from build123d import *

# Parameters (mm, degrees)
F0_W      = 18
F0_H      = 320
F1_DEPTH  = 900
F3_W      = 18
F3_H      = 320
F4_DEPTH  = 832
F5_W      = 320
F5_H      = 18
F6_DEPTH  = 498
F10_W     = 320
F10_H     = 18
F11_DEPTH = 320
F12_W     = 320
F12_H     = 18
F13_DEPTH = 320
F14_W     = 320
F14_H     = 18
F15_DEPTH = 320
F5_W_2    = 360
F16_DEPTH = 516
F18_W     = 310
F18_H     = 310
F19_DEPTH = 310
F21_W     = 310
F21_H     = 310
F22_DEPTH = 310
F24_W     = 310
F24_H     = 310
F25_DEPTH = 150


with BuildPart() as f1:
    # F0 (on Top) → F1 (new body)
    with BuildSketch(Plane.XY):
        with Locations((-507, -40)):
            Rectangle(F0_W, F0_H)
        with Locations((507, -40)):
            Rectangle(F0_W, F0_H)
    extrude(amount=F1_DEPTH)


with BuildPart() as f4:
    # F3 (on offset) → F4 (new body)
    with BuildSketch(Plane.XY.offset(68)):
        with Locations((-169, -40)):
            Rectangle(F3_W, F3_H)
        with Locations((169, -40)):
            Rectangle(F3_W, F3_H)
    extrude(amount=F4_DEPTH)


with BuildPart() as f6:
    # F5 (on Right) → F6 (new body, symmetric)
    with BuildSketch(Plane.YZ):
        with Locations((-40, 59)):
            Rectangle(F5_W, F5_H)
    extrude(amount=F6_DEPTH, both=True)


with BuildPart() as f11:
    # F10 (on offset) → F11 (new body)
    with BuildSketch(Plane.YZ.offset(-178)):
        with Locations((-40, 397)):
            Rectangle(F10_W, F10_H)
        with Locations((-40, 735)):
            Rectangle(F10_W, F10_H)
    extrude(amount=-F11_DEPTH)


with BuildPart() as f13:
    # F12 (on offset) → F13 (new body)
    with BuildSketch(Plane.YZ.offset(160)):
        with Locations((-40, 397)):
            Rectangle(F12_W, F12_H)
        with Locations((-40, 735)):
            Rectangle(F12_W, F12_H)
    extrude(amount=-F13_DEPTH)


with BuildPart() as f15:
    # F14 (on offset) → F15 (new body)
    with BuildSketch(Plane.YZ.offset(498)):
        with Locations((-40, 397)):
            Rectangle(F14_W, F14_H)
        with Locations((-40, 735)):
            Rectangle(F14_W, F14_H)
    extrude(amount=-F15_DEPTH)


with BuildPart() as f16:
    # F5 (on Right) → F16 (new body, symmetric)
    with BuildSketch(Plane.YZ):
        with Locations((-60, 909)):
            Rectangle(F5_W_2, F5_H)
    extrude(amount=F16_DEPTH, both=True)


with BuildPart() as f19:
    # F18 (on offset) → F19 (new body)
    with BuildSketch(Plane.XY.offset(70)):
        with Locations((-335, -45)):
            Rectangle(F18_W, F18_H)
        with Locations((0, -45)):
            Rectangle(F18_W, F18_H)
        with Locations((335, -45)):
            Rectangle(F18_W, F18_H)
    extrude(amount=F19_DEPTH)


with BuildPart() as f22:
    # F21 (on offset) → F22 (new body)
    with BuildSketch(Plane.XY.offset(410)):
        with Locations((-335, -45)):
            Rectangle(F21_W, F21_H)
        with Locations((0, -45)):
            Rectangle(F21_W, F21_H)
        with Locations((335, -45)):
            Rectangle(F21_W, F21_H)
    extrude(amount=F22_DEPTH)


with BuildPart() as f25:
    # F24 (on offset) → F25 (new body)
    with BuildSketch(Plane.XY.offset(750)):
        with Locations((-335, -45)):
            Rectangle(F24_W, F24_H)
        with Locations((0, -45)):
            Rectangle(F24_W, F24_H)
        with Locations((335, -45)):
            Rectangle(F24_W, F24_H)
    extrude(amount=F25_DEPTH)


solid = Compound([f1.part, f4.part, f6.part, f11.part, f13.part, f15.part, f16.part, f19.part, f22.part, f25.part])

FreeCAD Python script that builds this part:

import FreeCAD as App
import Part
import Sketcher
Q = App.Units.Quantity


def add_polygon(sketch, points):
    """Adds a closed chain of lines whose ends are joined by coincident constraints."""
    first, n = sketch.GeometryCount, len(points)
    for a, b in zip(points, points[1:] + points[:1]):
        sketch.addGeometry(Part.LineSegment(App.Vector(*a, 0), App.Vector(*b, 0)), False)
    for i in range(n):
        sketch.addConstraint(Sketcher.Constraint("Coincident", first + i, 2, first + (i + 1) % n, 1))

doc = App.newDocument("Part")
params = doc.addObject("Spreadsheet::Sheet", "Params")
for row, (alias, value) in enumerate([
    ("sketch1_width", "18 mm"),
    ("sketch1_height", "320 mm"),
    ("pad1_length", "900 mm"),
    ("sketch2_width", "18 mm"),
    ("sketch2_height", "320 mm"),
    ("pad2_length", "832 mm"),
    ("sketch3_width", "320 mm"),
    ("sketch3_height", "18 mm"),
    ("pad3_length", "996 mm"),
    ("sketch4_width", "320 mm"),
    ("sketch4_height", "18 mm"),
    ("pad4_length", "320 mm"),
    ("sketch5_width", "320 mm"),
    ("sketch5_height", "18 mm"),
    ("pad5_length", "320 mm"),
    ("sketch6_width", "320 mm"),
    ("sketch6_height", "18 mm"),
    ("pad6_length", "320 mm"),
    ("sketch7_width", "360 mm"),
    ("sketch7_height", "18 mm"),
    ("pad7_length", "1032 mm"),
    ("sketch8_width", "310 mm"),
    ("pad8_length", "310 mm"),
    ("sketch9_width", "310 mm"),
    ("pad9_length", "310 mm"),
    ("sketch10_width", "310 mm"),
    ("pad10_length", "150 mm"),
], start=1):
    params.set(f"A{row}", alias)
    params.set(f"B{row}", "=" + value)
    params.setAlias(f"B{row}", alias)

body = doc.addObject("PartDesign::Body", "Body")
body.AllowCompound = True

sketch1 = body.newObject("Sketcher::SketchObject", "Sketch")
sketch1.AttachmentSupport = (doc.getObject("XY_Plane"), [""])
sketch1.MapMode = "FlatFace"
add_polygon(sketch1, [(-516, 120), (-516, -200), (-498, -200), (-498, 120)])
add_polygon(sketch1, [(498, 120), (498, -200), (516, -200), (516, 120)])
sketch1.addConstraint([
    Sketcher.Constraint("Vertical", 0),
    Sketcher.Constraint("Horizontal", 1),
    Sketcher.Constraint("Vertical", 2),
    Sketcher.Constraint("Horizontal", 3),
    Sketcher.Constraint("Vertical", 4),
    Sketcher.Constraint("Horizontal", 5),
    Sketcher.Constraint("Vertical", 6),
    Sketcher.Constraint("Horizontal", 7),
    Sketcher.Constraint("Symmetric", 1, 2, 4, 2, -2),
    Sketcher.Constraint("Symmetric", 3, 2, 6, 2, -2),
    Sketcher.Constraint("DistanceX", 1, 1, 1, 2, Q("18 mm")),
    Sketcher.Constraint("DistanceY", 0, 2, 0, 1, Q("320 mm")),
    Sketcher.Constraint("DistanceX", 0, 2, -1, 1, Q("516 mm")),
    Sketcher.Constraint("DistanceY", 0, 2, -1, 1, Q("200 mm")),
])
sketch1.setExpression("Constraints[18]", "Params.sketch1_width")
sketch1.setExpression("Constraints[19]", "Params.sketch1_height")
pad1 = body.newObject("PartDesign::Pad", "Pad")
pad1.Profile = sketch1
pad1.setExpression("Length", "Params.pad1_length")
body2 = doc.addObject("PartDesign::Body", "Body001")
body2.AllowCompound = True

sketch2 = body2.newObject("Sketcher::SketchObject", "Sketch001")
sketch2.AttachmentSupport = (doc.getObject("XY_Plane001"), [""])
sketch2.MapMode = "FlatFace"
sketch2.AttachmentOffset = App.Placement(App.Vector(0, 0, 68), App.Rotation())
add_polygon(sketch2, [(-178, 120), (-178, -200), (-160, -200), (-160, 120)])
add_polygon(sketch2, [(160, 120), (160, -200), (178, -200), (178, 120)])
sketch2.addConstraint([
    Sketcher.Constraint("Vertical", 0),
    Sketcher.Constraint("Horizontal", 1),
    Sketcher.Constraint("Vertical", 2),
    Sketcher.Constraint("Horizontal", 3),
    Sketcher.Constraint("Vertical", 4),
    Sketcher.Constraint("Horizontal", 5),
    Sketcher.Constraint("Vertical", 6),
    Sketcher.Constraint("Horizontal", 7),
    Sketcher.Constraint("Symmetric", 1, 2, 4, 2, -2),
    Sketcher.Constraint("Symmetric", 3, 2, 6, 2, -2),
    Sketcher.Constraint("DistanceX", 1, 1, 1, 2, Q("18 mm")),
    Sketcher.Constraint("DistanceY", 0, 2, 0, 1, Q("320 mm")),
    Sketcher.Constraint("DistanceX", 0, 2, -1, 1, Q("178 mm")),
    Sketcher.Constraint("DistanceY", 0, 2, -1, 1, Q("200 mm")),
])
sketch2.setExpression("Constraints[18]", "Params.sketch2_width")
sketch2.setExpression("Constraints[19]", "Params.sketch2_height")
pad2 = body2.newObject("PartDesign::Pad", "Pad001")
pad2.Profile = sketch2
pad2.setExpression("Length", "Params.pad2_length")
body3 = doc.addObject("PartDesign::Body", "Body002")

sketch3 = body3.newObject("Sketcher::SketchObject", "Sketch002")
sketch3.AttachmentSupport = (doc.getObject("YZ_Plane002"), [""])
sketch3.MapMode = "FlatFace"
add_polygon(sketch3, [(-200, 68), (-200, 50), (120, 50), (120, 68)])
sketch3.addConstraint([
    Sketcher.Constraint("Vertical", 0),
    Sketcher.Constraint("Horizontal", 1),
    Sketcher.Constraint("Vertical", 2),
    Sketcher.Constraint("Horizontal", 3),
    Sketcher.Constraint("DistanceX", 1, 1, 1, 2, Q("320 mm")),
    Sketcher.Constraint("DistanceY", 0, 2, 0, 1, Q("18 mm")),
    Sketcher.Constraint("DistanceX", 0, 2, -1, 1, Q("200 mm")),
    Sketcher.Constraint("DistanceY", -1, 1, 0, 2, Q("50 mm")),
])
sketch3.setExpression("Constraints[8]", "Params.sketch3_width")
sketch3.setExpression("Constraints[9]", "Params.sketch3_height")
pad3 = body3.newObject("PartDesign::Pad", "Pad002")
pad3.Profile = sketch3
pad3.setExpression("Length", "Params.pad3_length")
pad3.Midplane = True
body4 = doc.addObject("PartDesign::Body", "Body003")
body4.AllowCompound = True

sketch4 = body4.newObject("Sketcher::SketchObject", "Sketch003")
sketch4.AttachmentSupport = (doc.getObject("YZ_Plane003"), [""])
sketch4.MapMode = "FlatFace"
sketch4.AttachmentOffset = App.Placement(App.Vector(0, 0, -178), App.Rotation())
add_polygon(sketch4, [(-200, 406), (-200, 388), (120, 388), (120, 406)])
add_polygon(sketch4, [(-200, 744), (-200, 726), (120, 726), (120, 744)])
sketch4.addConstraint([
    Sketcher.Constraint("Vertical", 0),
    Sketcher.Constraint("Horizontal", 1),
    Sketcher.Constraint("Vertical", 2),
    Sketcher.Constraint("Horizontal", 3),
    Sketcher.Constraint("Vertical", 4),
    Sketcher.Constraint("Horizontal", 5),
    Sketcher.Constraint("Vertical", 6),
    Sketcher.Constraint("Horizontal", 7),
    Sketcher.Constraint("Vertical", 3, 2, 4, 2),
    Sketcher.Constraint("Vertical", 2, 2, 5, 2),
    Sketcher.Constraint("Equal", 2, 4),
    Sketcher.Constraint("DistanceX", 1, 1, 1, 2, Q("320 mm")),
    Sketcher.Constraint("DistanceY", 0, 2, 0, 1, Q("18 mm")),
    Sketcher.Constraint("DistanceX", 0, 2, -1, 1, Q("200 mm")),
    Sketcher.Constraint("DistanceY", -1, 1, 0, 2, Q("388 mm")),
    Sketcher.Constraint("DistanceY", -1, 1, 4, 2, Q("726 mm")),
])
sketch4.setExpression("Constraints[19]", "Params.sketch4_width")
sketch4.setExpression("Constraints[20]", "Params.sketch4_height")
pad4 = body4.newObject("PartDesign::Pad", "Pad003")
pad4.Profile = sketch4
pad4.setExpression("Length", "Params.pad4_length")
pad4.Reversed = True
body5 = doc.addObject("PartDesign::Body", "Body004")
body5.AllowCompound = True

sketch5 = body5.newObject("Sketcher::SketchObject", "Sketch004")
sketch5.AttachmentSupport = (doc.getObject("YZ_Plane004"), [""])
sketch5.MapMode = "FlatFace"
sketch5.AttachmentOffset = App.Placement(App.Vector(0, 0, 160), App.Rotation())
add_polygon(sketch5, [(-200, 406), (-200, 388), (120, 388), (120, 406)])
add_polygon(sketch5, [(-200, 744), (-200, 726), (120, 726), (120, 744)])
sketch5.addConstraint([
    Sketcher.Constraint("Vertical", 0),
    Sketcher.Constraint("Horizontal", 1),
    Sketcher.Constraint("Vertical", 2),
    Sketcher.Constraint("Horizontal", 3),
    Sketcher.Constraint("Vertical", 4),
    Sketcher.Constraint("Horizontal", 5),
    Sketcher.Constraint("Vertical", 6),
    Sketcher.Constraint("Horizontal", 7),
    Sketcher.Constraint("Vertical", 3, 2, 4, 2),
    Sketcher.Constraint("Vertical", 2, 2, 5, 2),
    Sketcher.Constraint("Equal", 2, 4),
    Sketcher.Constraint("DistanceX", 1, 1, 1, 2, Q("320 mm")),
    Sketcher.Constraint("DistanceY", 0, 2, 0, 1, Q("18 mm")),
    Sketcher.Constraint("DistanceX", 0, 2, -1, 1, Q("200 mm")),
    Sketcher.Constraint("DistanceY", -1, 1, 0, 2, Q("388 mm")),
    Sketcher.Constraint("DistanceY", -1, 1, 4, 2, Q("726 mm")),
])
sketch5.setExpression("Constraints[19]", "Params.sketch5_width")
sketch5.setExpression("Constraints[20]", "Params.sketch5_height")
pad5 = body5.newObject("PartDesign::Pad", "Pad004")
pad5.Profile = sketch5
pad5.setExpression("Length", "Params.pad5_length")
pad5.Reversed = True
body6 = doc.addObject("PartDesign::Body", "Body005")
body6.AllowCompound = True

sketch6 = body6.newObject("Sketcher::SketchObject", "Sketch005")
sketch6.AttachmentSupport = (doc.getObject("YZ_Plane005"), [""])
sketch6.MapMode = "FlatFace"
sketch6.AttachmentOffset = App.Placement(App.Vector(0, 0, 498), App.Rotation())
add_polygon(sketch6, [(-200, 406), (-200, 388), (120, 388), (120, 406)])
add_polygon(sketch6, [(-200, 744), (-200, 726), (120, 726), (120, 744)])
sketch6.addConstraint([
    Sketcher.Constraint("Vertical", 0),
    Sketcher.Constraint("Horizontal", 1),
    Sketcher.Constraint("Vertical", 2),
    Sketcher.Constraint("Horizontal", 3),
    Sketcher.Constraint("Vertical", 4),
    Sketcher.Constraint("Horizontal", 5),
    Sketcher.Constraint("Vertical", 6),
    Sketcher.Constraint("Horizontal", 7),
    Sketcher.Constraint("Vertical", 3, 2, 4, 2),
    Sketcher.Constraint("Vertical", 2, 2, 5, 2),
    Sketcher.Constraint("Equal", 2, 4),
    Sketcher.Constraint("DistanceX", 1, 1, 1, 2, Q("320 mm")),
    Sketcher.Constraint("DistanceY", 0, 2, 0, 1, Q("18 mm")),
    Sketcher.Constraint("DistanceX", 0, 2, -1, 1, Q("200 mm")),
    Sketcher.Constraint("DistanceY", -1, 1, 0, 2, Q("388 mm")),
    Sketcher.Constraint("DistanceY", -1, 1, 4, 2, Q("726 mm")),
])
sketch6.setExpression("Constraints[19]", "Params.sketch6_width")
sketch6.setExpression("Constraints[20]", "Params.sketch6_height")
pad6 = body6.newObject("PartDesign::Pad", "Pad005")
pad6.Profile = sketch6
pad6.setExpression("Length", "Params.pad6_length")
pad6.Reversed = True
body7 = doc.addObject("PartDesign::Body", "Body006")

sketch7 = body7.newObject("Sketcher::SketchObject", "Sketch006")
sketch7.AttachmentSupport = (doc.getObject("YZ_Plane006"), [""])
sketch7.MapMode = "FlatFace"
add_polygon(sketch7, [(-240, 918), (-240, 900), (120, 900), (120, 918)])
sketch7.addConstraint([
    Sketcher.Constraint("Vertical", 0),
    Sketcher.Constraint("Horizontal", 1),
    Sketcher.Constraint("Vertical", 2),
    Sketcher.Constraint("Horizontal", 3),
    Sketcher.Constraint("DistanceX", 1, 1, 1, 2, Q("360 mm")),
    Sketcher.Constraint("DistanceY", 0, 2, 0, 1, Q("18 mm")),
    Sketcher.Constraint("DistanceX", 0, 2, -1, 1, Q("240 mm")),
    Sketcher.Constraint("DistanceY", -1, 1, 0, 2, Q("900 mm")),
])
sketch7.setExpression("Constraints[8]", "Params.sketch7_width")
sketch7.setExpression("Constraints[9]", "Params.sketch7_height")
pad7 = body7.newObject("PartDesign::Pad", "Pad006")
pad7.Profile = sketch7
pad7.setExpression("Length", "Params.pad7_length")
pad7.Midplane = True
body8 = doc.addObject("PartDesign::Body", "Body007")
body8.AllowCompound = True

sketch8 = body8.newObject("Sketcher::SketchObject", "Sketch007")
sketch8.AttachmentSupport = (doc.getObject("XY_Plane007"), [""])
sketch8.MapMode = "FlatFace"
sketch8.AttachmentOffset = App.Placement(App.Vector(0, 0, 70), App.Rotation())
add_polygon(sketch8, [(-490, 110), (-490, -200), (-180, -200), (-180, 110)])
add_polygon(sketch8, [(-155, 110), (-155, -200), (155, -200), (155, 110)])
add_polygon(sketch8, [(180, 110), (180, -200), (490, -200), (490, 110)])
sketch8.addConstraint([
    Sketcher.Constraint("Vertical", 0),
    Sketcher.Constraint("Horizontal", 1),
    Sketcher.Constraint("Vertical", 2),
    Sketcher.Constraint("Horizontal", 3),
    Sketcher.Constraint("Vertical", 4),
    Sketcher.Constraint("Horizontal", 5),
    Sketcher.Constraint("Vertical", 6),
    Sketcher.Constraint("Horizontal", 7),
    Sketcher.Constraint("Vertical", 8),
    Sketcher.Constraint("Horizontal", 9),
    Sketcher.Constraint("Vertical", 10),
    Sketcher.Constraint("Horizontal", 11),
    Sketcher.Constraint("Symmetric", 1, 2, 8, 2, -2),
    Sketcher.Constraint("Symmetric", 3, 2, 10, 2, -2),
    Sketcher.Constraint("Horizontal", 1, 2, 4, 2),
    Sketcher.Constraint("Horizontal", 3, 2, 6, 2),
    Sketcher.Constraint("Equal", 3, 5),
    Sketcher.Constraint("Equal", 11, 0),
    Sketcher.Constraint("DistanceX", 1, 1, 1, 2, Q("310 mm")),
    Sketcher.Constraint("DistanceX", 0, 2, -1, 1, Q("490 mm")),
    Sketcher.Constraint("DistanceY", 0, 2, -1, 1, Q("200 mm")),
    Sketcher.Constraint("DistanceX", 4, 2, -1, 1, Q("155 mm")),
])
sketch8.setExpression("Constraints[30]", "Params.sketch8_width")
pad8 = body8.newObject("PartDesign::Pad", "Pad007")
pad8.Profile = sketch8
pad8.setExpression("Length", "Params.pad8_length")
body9 = doc.addObject("PartDesign::Body", "Body008")
body9.AllowCompound = True

sketch9 = body9.newObject("Sketcher::SketchObject", "Sketch008")
sketch9.AttachmentSupport = (doc.getObject("XY_Plane008"), [""])
sketch9.MapMode = "FlatFace"
sketch9.AttachmentOffset = App.Placement(App.Vector(0, 0, 410), App.Rotation())
add_polygon(sketch9, [(-490, 110), (-490, -200), (-180, -200), (-180, 110)])
add_polygon(sketch9, [(-155, 110), (-155, -200), (155, -200), (155, 110)])
add_polygon(sketch9, [(180, 110), (180, -200), (490, -200), (490, 110)])
sketch9.addConstraint([
    Sketcher.Constraint("Vertical", 0),
    Sketcher.Constraint("Horizontal", 1),
    Sketcher.Constraint("Vertical", 2),
    Sketcher.Constraint("Horizontal", 3),
    Sketcher.Constraint("Vertical", 4),
    Sketcher.Constraint("Horizontal", 5),
    Sketcher.Constraint("Vertical", 6),
    Sketcher.Constraint("Horizontal", 7),
    Sketcher.Constraint("Vertical", 8),
    Sketcher.Constraint("Horizontal", 9),
    Sketcher.Constraint("Vertical", 10),
    Sketcher.Constraint("Horizontal", 11),
    Sketcher.Constraint("Symmetric", 1, 2, 8, 2, -2),
    Sketcher.Constraint("Symmetric", 3, 2, 10, 2, -2),
    Sketcher.Constraint("Horizontal", 1, 2, 4, 2),
    Sketcher.Constraint("Horizontal", 3, 2, 6, 2),
    Sketcher.Constraint("Equal", 3, 5),
    Sketcher.Constraint("Equal", 11, 0),
    Sketcher.Constraint("DistanceX", 1, 1, 1, 2, Q("310 mm")),
    Sketcher.Constraint("DistanceX", 0, 2, -1, 1, Q("490 mm")),
    Sketcher.Constraint("DistanceY", 0, 2, -1, 1, Q("200 mm")),
    Sketcher.Constraint("DistanceX", 4, 2, -1, 1, Q("155 mm")),
])
sketch9.setExpression("Constraints[30]", "Params.sketch9_width")
pad9 = body9.newObject("PartDesign::Pad", "Pad008")
pad9.Profile = sketch9
pad9.setExpression("Length", "Params.pad9_length")
body10 = doc.addObject("PartDesign::Body", "Body009")
body10.AllowCompound = True

sketch10 = body10.newObject("Sketcher::SketchObject", "Sketch009")
sketch10.AttachmentSupport = (doc.getObject("XY_Plane009"), [""])
sketch10.MapMode = "FlatFace"
sketch10.AttachmentOffset = App.Placement(App.Vector(0, 0, 750), App.Rotation())
add_polygon(sketch10, [(-490, 110), (-490, -200), (-180, -200), (-180, 110)])
add_polygon(sketch10, [(-155, 110), (-155, -200), (155, -200), (155, 110)])
add_polygon(sketch10, [(180, 110), (180, -200), (490, -200), (490, 110)])
sketch10.addConstraint([
    Sketcher.Constraint("Vertical", 0),
    Sketcher.Constraint("Horizontal", 1),
    Sketcher.Constraint("Vertical", 2),
    Sketcher.Constraint("Horizontal", 3),
    Sketcher.Constraint("Vertical", 4),
    Sketcher.Constraint("Horizontal", 5),
    Sketcher.Constraint("Vertical", 6),
    Sketcher.Constraint("Horizontal", 7),
    Sketcher.Constraint("Vertical", 8),
    Sketcher.Constraint("Horizontal", 9),
    Sketcher.Constraint("Vertical", 10),
    Sketcher.Constraint("Horizontal", 11),
    Sketcher.Constraint("Symmetric", 1, 2, 8, 2, -2),
    Sketcher.Constraint("Symmetric", 3, 2, 10, 2, -2),
    Sketcher.Constraint("Horizontal", 1, 2, 4, 2),
    Sketcher.Constraint("Horizontal", 3, 2, 6, 2),
    Sketcher.Constraint("Equal", 3, 5),
    Sketcher.Constraint("Equal", 11, 0),
    Sketcher.Constraint("DistanceX", 1, 1, 1, 2, Q("310 mm")),
    Sketcher.Constraint("DistanceX", 0, 2, -1, 1, Q("490 mm")),
    Sketcher.Constraint("DistanceY", 0, 2, -1, 1, Q("200 mm")),
    Sketcher.Constraint("DistanceX", 4, 2, -1, 1, Q("155 mm")),
])
sketch10.setExpression("Constraints[30]", "Params.sketch10_width")
pad10 = body10.newObject("PartDesign::Pad", "Pad009")
pad10.Profile = sketch10
pad10.setExpression("Length", "Params.pad10_length")

doc.recompute()
